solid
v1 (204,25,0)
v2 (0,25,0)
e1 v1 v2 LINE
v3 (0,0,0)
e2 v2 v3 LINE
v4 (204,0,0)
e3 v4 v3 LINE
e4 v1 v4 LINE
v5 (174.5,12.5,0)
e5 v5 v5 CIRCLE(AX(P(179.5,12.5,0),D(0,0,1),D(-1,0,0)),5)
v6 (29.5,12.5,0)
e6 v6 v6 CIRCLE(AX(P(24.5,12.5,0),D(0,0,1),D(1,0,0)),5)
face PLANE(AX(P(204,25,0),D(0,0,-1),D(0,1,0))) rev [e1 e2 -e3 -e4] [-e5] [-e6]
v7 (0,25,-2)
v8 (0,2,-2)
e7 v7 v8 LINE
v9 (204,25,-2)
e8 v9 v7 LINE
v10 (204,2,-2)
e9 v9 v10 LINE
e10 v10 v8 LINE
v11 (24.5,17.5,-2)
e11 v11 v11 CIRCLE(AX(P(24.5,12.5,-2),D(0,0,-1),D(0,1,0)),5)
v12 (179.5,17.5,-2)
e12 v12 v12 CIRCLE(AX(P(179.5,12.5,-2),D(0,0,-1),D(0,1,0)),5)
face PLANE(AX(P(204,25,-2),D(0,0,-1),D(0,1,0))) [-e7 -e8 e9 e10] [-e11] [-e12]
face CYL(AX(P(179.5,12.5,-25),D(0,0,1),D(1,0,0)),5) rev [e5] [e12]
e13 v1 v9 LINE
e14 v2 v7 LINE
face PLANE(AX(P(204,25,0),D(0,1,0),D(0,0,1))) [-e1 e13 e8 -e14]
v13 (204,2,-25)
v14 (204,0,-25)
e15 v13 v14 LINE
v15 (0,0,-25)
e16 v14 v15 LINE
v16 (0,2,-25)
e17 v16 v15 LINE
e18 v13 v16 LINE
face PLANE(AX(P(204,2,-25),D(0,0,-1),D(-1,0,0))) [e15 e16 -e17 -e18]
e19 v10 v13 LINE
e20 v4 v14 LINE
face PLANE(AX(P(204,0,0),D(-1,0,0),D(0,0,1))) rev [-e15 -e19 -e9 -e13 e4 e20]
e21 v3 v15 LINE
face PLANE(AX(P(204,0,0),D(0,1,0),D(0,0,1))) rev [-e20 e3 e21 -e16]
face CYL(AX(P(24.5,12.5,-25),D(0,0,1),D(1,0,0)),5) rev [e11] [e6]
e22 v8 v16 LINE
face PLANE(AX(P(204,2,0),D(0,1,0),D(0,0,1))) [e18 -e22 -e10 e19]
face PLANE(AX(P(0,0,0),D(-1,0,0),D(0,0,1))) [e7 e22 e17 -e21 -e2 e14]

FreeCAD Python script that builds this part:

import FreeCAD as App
import Part
import Sketcher

V = App.Vector
Q = App.Units.Quantity


def add_polygon(sketch, points):
    """Adds a closed chain of lines whose ends are joined by coincident constraints."""
    first, n = sketch.GeometryCount, len(points)
    for a, b in zip(points, points[1:] + points[:1]):
        sketch.addGeometry(Part.LineSegment(App.Vector(*a, 0), App.Vector(*b, 0)), False)
    for i in range(n):
        sketch.addConstraint(Sketcher.Constraint("Coincident", first + i, 2, first + (i + 1) % n, 1))

doc = App.newDocument("Part")
body = doc.addObject("PartDesign::Body", "Body")

# Sketch on YZ plane
sketch1 = body.newObject("Sketcher::SketchObject", "Sketch")
sketch1.AttachmentSupport = (doc.getObject("YZ_Plane"), [""])
sketch1.MapMode = "FlatFace"
add_polygon(sketch1, [(25, 0), (0, 0), (0, -25), (2, -25), (2, -2), (25, -2)])  # lines 0-5
sketch1.addConstraint([
    Sketcher.Constraint("Horizontal", 0),
    Sketcher.Constraint("Vertical", 1),
    Sketcher.Constraint("Horizontal", 2),
    Sketcher.Constraint("Vertical", 3),
    Sketcher.Constraint("Horizontal", 4),
    Sketcher.Constraint("Vertical", 5),
    Sketcher.Constraint("Coincident", 0, 2, -1, 1),
    Sketcher.Constraint("Equal", 0, 1),
    Sketcher.Constraint("Equal", 4, 3),
    Sketcher.Constraint("DistanceX", 0, 2, 0, 1, Q("25 mm")),
    Sketcher.Constraint("DistanceX", 2, 1, 2, 2, Q("2 mm")),
])
pad1 = body.newObject("PartDesign::Pad", "Pad")
pad1.Profile = sketch1
pad1.Length = 204

# Sketch on XY plane
sketch2 = body.newObject("Sketcher::SketchObject", "Sketch001")
sketch2.AttachmentSupport = (doc.getObject("XY_Plane"), [""])
sketch2.MapMode = "FlatFace"
sketch2.addGeometry([
    Part.Circle(V(24, 12, 0), V(0, 0, 1), 5),
    Part.Circle(V(180, 12, 0), V(0, 0, 1), 5),
], False)
sketch2.addConstraint([
    Sketcher.Constraint("Equal", 0, 1),
    Sketcher.Constraint("Horizontal", 0, 3, 1, 3),
    Sketcher.Constraint("Diameter", 0, Q("10 mm")),
    Sketcher.Constraint("DistanceX", 0, 3, 1, 3, Q("155 mm")),
    Sketcher.Constraint("DistanceX", -1, 1, 0, 3, Q("24.5 mm")),
    Sketcher.Constraint("DistanceY", -1, 1, 0, 3, Q("12.5 mm")),
])
pocket1 = body.newObject("PartDesign::Pocket", "Pocket")
pocket1.Profile = sketch2
pocket1.Type = "ThroughAll"

doc.recompute()
